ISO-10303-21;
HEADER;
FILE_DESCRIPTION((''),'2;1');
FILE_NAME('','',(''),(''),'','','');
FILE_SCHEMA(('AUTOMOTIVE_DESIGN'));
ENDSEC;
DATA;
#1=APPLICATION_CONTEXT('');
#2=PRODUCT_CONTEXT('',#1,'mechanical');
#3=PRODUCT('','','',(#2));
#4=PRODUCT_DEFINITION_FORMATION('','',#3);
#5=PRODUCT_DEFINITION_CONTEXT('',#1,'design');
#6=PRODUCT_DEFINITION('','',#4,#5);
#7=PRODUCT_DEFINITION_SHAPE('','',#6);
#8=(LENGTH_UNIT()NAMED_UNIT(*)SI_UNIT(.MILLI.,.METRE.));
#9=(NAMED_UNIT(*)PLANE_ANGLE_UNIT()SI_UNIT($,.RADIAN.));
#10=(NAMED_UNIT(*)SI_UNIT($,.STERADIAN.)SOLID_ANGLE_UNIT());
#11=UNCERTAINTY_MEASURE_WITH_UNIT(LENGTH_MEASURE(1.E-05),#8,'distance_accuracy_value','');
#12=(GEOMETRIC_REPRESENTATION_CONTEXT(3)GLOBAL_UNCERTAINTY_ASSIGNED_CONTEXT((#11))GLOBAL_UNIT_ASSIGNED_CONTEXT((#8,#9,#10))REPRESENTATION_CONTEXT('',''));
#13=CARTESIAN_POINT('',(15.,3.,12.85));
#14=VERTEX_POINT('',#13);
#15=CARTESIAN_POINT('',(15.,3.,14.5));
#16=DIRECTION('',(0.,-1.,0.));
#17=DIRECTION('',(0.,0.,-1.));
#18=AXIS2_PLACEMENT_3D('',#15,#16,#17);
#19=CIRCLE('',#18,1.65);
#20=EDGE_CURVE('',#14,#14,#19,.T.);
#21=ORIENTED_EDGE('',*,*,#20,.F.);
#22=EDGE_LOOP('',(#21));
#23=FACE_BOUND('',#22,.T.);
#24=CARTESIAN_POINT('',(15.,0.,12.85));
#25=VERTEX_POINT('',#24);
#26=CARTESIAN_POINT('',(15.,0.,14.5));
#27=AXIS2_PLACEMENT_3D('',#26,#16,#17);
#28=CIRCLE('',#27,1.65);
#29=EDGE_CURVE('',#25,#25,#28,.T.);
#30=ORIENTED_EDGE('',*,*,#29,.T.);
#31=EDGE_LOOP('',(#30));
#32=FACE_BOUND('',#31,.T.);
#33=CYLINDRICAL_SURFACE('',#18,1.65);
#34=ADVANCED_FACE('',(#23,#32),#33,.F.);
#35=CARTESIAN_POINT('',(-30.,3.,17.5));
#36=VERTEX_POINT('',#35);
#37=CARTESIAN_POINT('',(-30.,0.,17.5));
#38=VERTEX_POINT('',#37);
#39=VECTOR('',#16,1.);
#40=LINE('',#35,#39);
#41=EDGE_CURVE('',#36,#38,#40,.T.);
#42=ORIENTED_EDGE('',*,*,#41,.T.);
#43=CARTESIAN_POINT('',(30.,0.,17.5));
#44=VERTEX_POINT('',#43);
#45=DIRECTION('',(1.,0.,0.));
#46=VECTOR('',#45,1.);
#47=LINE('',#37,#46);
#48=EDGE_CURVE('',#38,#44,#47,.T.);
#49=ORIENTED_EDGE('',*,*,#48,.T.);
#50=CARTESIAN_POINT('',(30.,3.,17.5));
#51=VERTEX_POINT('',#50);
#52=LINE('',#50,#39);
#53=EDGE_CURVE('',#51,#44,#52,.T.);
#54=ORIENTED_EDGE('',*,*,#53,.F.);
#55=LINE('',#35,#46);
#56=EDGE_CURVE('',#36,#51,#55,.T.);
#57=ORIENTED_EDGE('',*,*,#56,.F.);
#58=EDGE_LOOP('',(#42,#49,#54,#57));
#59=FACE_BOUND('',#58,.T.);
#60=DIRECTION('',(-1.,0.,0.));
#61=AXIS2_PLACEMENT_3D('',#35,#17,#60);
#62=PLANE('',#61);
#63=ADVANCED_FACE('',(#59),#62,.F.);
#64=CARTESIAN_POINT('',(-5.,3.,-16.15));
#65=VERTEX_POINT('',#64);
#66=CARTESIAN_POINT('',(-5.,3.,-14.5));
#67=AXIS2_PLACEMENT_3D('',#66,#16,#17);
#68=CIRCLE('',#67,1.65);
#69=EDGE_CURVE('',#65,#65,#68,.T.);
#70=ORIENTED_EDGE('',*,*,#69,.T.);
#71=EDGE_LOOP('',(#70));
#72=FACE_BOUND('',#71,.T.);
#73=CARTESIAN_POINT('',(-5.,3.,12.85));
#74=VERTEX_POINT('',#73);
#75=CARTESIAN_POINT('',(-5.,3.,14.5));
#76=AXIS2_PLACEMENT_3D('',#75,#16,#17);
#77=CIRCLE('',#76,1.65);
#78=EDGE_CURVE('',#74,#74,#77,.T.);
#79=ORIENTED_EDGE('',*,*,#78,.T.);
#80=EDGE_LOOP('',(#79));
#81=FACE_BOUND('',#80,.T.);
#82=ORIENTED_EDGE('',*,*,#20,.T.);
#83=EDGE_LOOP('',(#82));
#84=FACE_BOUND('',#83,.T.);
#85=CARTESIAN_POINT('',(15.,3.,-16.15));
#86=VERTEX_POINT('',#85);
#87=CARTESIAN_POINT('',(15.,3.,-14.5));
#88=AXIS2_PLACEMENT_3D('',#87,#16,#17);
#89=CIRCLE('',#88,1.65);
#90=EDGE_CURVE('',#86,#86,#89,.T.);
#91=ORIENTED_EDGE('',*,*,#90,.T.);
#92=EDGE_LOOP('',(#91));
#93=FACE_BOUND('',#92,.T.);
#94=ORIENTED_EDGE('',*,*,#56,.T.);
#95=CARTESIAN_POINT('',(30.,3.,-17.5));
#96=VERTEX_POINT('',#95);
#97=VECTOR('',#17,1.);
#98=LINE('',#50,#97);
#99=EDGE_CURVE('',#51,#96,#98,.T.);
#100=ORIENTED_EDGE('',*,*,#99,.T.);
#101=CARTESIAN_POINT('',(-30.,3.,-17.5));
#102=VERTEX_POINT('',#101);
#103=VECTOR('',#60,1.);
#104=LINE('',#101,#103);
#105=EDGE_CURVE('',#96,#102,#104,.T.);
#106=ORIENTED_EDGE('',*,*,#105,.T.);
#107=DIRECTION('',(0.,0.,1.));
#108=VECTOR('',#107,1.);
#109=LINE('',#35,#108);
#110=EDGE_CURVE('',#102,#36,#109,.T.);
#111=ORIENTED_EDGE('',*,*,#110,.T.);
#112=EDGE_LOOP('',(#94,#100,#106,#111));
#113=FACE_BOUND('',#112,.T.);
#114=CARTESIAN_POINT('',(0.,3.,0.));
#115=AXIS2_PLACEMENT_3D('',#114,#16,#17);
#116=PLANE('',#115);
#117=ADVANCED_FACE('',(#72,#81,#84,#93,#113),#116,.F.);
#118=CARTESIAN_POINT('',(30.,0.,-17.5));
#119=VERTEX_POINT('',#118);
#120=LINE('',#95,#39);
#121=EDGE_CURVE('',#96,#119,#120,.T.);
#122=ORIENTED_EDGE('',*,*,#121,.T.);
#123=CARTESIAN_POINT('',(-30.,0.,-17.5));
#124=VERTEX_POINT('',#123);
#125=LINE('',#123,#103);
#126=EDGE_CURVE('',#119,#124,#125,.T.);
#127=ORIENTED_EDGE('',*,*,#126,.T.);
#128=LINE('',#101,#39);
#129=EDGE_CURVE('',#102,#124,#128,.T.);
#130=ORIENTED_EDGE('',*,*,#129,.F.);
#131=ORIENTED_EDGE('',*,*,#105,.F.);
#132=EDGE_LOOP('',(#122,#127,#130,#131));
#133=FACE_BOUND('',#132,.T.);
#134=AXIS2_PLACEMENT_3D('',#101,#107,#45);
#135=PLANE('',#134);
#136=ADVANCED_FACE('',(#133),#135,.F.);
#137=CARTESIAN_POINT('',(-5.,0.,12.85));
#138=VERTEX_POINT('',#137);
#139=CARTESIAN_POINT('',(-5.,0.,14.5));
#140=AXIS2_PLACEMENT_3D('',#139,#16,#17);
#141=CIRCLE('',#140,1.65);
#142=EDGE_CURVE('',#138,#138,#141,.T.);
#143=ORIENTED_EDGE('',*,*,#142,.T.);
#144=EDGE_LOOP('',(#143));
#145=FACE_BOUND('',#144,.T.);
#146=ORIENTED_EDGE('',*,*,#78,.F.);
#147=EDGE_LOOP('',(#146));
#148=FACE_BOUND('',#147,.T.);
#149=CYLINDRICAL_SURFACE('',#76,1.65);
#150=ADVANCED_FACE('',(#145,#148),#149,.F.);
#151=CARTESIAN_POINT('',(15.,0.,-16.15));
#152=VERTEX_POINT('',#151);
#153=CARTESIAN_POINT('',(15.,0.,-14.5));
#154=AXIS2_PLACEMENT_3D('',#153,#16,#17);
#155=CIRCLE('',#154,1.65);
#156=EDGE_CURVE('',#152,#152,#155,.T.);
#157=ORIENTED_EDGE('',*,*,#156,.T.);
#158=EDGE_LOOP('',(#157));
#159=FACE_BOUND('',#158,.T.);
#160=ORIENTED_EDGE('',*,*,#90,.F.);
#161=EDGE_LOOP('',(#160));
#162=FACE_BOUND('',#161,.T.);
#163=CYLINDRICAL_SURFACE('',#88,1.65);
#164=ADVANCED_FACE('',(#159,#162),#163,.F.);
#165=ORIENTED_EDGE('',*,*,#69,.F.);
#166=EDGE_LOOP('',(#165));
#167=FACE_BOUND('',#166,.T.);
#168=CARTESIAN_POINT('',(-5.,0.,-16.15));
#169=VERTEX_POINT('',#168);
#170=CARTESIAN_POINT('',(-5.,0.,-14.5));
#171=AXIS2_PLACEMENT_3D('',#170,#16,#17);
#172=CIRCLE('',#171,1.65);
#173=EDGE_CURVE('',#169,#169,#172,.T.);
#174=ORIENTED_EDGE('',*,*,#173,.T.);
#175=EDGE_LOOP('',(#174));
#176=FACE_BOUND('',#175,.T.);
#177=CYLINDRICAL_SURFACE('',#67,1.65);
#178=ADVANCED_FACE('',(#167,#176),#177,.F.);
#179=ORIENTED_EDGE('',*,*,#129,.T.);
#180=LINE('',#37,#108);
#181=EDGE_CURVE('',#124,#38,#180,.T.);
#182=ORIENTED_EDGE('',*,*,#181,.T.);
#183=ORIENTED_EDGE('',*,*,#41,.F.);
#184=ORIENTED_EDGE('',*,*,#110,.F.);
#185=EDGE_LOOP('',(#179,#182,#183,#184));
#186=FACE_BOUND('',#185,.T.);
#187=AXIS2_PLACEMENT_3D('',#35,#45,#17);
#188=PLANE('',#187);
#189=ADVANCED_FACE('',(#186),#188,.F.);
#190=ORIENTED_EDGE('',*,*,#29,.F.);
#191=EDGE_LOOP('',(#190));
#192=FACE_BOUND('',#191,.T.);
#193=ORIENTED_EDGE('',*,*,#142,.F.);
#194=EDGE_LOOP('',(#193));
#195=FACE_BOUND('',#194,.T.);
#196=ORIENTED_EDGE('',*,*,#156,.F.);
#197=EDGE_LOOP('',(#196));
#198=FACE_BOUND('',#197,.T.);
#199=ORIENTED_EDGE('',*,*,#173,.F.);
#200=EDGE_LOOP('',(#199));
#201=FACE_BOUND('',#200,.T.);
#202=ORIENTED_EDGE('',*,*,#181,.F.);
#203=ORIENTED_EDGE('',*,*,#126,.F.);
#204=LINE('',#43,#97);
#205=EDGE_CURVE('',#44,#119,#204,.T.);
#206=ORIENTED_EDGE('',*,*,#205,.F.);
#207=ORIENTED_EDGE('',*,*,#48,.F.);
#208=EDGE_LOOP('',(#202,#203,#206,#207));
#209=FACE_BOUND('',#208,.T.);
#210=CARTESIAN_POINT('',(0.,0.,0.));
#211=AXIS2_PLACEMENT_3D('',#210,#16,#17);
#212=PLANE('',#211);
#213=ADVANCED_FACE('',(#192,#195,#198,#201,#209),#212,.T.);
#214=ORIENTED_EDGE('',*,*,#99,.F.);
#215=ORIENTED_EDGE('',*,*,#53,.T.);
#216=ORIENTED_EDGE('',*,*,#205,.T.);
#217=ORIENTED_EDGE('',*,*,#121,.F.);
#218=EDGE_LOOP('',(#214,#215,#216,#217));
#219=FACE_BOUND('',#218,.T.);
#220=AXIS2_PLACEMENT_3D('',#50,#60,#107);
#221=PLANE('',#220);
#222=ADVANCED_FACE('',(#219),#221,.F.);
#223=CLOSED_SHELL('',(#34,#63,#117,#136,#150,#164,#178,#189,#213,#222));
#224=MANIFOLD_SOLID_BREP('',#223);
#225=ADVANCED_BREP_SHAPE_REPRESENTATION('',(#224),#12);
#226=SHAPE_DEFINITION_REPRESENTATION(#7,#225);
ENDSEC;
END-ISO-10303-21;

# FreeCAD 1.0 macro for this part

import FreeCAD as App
import Part
import Sketcher


def add_polygon(sketch, points):
    """Adds a closed chain of lines whose ends are joined by coincident constraints."""
    first, n = sketch.GeometryCount, len(points)
    for a, b in zip(points, points[1:] + points[:1]):
        sketch.addGeometry(Part.LineSegment(App.Vector(*a, 0), App.Vector(*b, 0)), False)
    for i in range(n):
        sketch.addConstraint(Sketcher.Constraint("Coincident", first + i, 2, first + (i + 1) % n, 1))

doc = App.newDocument("Part")
body = doc.addObject("PartDesign::Body", "Body")

# Sketch on XZ plane
sketch1 = body.newObject("Sketcher::SketchObject", "Sketch")
sketch1.AttachmentSupport = (doc.getObject("XZ_Plane"), [""])
sketch1.MapMode = "FlatFace"
add_polygon(sketch1, [(-30, -18), (-30, 18), (30, 18), (30, -18)])  # lines 0-3
sketch1.addConstraint([
    Sketcher.Constraint("Vertical", 0),
    Sketcher.Constraint("Horizontal", 1),
    Sketcher.Constraint("Vertical", 2),
    Sketcher.Constraint("Horizontal", 3),
    Sketcher.Constraint("Symmetric", 0, 2, 2, 2, -1, 1),
    Sketcher.Constraint("DistanceX", 1, 1, 1, 2, 60.0),
    Sketcher.Constraint("DistanceY", 0, 1, 0, 2, 35.0),
])
pad1 = body.newObject("PartDesign::Pad", "Pad")
pad1.Profile = sketch1
pad1.Length = 3
pad1.Reversed = True

# Sketch on XZ plane
sketch2 = body.newObject("Sketcher::SketchObject", "Sketch001")
sketch2.AttachmentSupport = (doc.getObject("XZ_Plane"), [""])
sketch2.MapMode = "FlatFace"
sketch2.addGeometry([
    Part.Circle(App.Vector(15, 14.5, 0), App.Vector(0, 0, 1), 1.6),
    Part.Circle(App.Vector(-5, 14.5, 0), App.Vector(0, 0, 1), 1.6),
    Part.Circle(App.Vector(-5, -14.5, 0), App.Vector(0, 0, 1), 1.6),
    Part.Circle(App.Vector(15, -14.5, 0), App.Vector(0, 0, 1), 1.6),
], False)
sketch2.addConstraint([
    Sketcher.Constraint("Equal", 0, 1),
    Sketcher.Constraint("Equal", 1, 2),
    Sketcher.Constraint("Equal", 2, 3),
    Sketcher.Constraint("Symmetric", 1, 3, 2, 3, -1),
    Sketcher.Constraint("Symmetric", 0, 3, 3, 3, -1),
    Sketcher.Constraint("Horizontal", 0, 3, 1, 3),
    Sketcher.Constraint("Diameter", 0, 3.3),
    Sketcher.Constraint("DistanceX", -1, 1, 0, 3, 15.0),
    Sketcher.Constraint("DistanceX", 1, 3, -1, 1, 5.0),
    Sketcher.Constraint("DistanceY", 2, 3, 1, 3, 29.0),
])
pocket1 = body.newObject("PartDesign::Pocket", "Pocket")
pocket1.Profile = sketch2
pocket1.Length = 3

doc.recompute()
